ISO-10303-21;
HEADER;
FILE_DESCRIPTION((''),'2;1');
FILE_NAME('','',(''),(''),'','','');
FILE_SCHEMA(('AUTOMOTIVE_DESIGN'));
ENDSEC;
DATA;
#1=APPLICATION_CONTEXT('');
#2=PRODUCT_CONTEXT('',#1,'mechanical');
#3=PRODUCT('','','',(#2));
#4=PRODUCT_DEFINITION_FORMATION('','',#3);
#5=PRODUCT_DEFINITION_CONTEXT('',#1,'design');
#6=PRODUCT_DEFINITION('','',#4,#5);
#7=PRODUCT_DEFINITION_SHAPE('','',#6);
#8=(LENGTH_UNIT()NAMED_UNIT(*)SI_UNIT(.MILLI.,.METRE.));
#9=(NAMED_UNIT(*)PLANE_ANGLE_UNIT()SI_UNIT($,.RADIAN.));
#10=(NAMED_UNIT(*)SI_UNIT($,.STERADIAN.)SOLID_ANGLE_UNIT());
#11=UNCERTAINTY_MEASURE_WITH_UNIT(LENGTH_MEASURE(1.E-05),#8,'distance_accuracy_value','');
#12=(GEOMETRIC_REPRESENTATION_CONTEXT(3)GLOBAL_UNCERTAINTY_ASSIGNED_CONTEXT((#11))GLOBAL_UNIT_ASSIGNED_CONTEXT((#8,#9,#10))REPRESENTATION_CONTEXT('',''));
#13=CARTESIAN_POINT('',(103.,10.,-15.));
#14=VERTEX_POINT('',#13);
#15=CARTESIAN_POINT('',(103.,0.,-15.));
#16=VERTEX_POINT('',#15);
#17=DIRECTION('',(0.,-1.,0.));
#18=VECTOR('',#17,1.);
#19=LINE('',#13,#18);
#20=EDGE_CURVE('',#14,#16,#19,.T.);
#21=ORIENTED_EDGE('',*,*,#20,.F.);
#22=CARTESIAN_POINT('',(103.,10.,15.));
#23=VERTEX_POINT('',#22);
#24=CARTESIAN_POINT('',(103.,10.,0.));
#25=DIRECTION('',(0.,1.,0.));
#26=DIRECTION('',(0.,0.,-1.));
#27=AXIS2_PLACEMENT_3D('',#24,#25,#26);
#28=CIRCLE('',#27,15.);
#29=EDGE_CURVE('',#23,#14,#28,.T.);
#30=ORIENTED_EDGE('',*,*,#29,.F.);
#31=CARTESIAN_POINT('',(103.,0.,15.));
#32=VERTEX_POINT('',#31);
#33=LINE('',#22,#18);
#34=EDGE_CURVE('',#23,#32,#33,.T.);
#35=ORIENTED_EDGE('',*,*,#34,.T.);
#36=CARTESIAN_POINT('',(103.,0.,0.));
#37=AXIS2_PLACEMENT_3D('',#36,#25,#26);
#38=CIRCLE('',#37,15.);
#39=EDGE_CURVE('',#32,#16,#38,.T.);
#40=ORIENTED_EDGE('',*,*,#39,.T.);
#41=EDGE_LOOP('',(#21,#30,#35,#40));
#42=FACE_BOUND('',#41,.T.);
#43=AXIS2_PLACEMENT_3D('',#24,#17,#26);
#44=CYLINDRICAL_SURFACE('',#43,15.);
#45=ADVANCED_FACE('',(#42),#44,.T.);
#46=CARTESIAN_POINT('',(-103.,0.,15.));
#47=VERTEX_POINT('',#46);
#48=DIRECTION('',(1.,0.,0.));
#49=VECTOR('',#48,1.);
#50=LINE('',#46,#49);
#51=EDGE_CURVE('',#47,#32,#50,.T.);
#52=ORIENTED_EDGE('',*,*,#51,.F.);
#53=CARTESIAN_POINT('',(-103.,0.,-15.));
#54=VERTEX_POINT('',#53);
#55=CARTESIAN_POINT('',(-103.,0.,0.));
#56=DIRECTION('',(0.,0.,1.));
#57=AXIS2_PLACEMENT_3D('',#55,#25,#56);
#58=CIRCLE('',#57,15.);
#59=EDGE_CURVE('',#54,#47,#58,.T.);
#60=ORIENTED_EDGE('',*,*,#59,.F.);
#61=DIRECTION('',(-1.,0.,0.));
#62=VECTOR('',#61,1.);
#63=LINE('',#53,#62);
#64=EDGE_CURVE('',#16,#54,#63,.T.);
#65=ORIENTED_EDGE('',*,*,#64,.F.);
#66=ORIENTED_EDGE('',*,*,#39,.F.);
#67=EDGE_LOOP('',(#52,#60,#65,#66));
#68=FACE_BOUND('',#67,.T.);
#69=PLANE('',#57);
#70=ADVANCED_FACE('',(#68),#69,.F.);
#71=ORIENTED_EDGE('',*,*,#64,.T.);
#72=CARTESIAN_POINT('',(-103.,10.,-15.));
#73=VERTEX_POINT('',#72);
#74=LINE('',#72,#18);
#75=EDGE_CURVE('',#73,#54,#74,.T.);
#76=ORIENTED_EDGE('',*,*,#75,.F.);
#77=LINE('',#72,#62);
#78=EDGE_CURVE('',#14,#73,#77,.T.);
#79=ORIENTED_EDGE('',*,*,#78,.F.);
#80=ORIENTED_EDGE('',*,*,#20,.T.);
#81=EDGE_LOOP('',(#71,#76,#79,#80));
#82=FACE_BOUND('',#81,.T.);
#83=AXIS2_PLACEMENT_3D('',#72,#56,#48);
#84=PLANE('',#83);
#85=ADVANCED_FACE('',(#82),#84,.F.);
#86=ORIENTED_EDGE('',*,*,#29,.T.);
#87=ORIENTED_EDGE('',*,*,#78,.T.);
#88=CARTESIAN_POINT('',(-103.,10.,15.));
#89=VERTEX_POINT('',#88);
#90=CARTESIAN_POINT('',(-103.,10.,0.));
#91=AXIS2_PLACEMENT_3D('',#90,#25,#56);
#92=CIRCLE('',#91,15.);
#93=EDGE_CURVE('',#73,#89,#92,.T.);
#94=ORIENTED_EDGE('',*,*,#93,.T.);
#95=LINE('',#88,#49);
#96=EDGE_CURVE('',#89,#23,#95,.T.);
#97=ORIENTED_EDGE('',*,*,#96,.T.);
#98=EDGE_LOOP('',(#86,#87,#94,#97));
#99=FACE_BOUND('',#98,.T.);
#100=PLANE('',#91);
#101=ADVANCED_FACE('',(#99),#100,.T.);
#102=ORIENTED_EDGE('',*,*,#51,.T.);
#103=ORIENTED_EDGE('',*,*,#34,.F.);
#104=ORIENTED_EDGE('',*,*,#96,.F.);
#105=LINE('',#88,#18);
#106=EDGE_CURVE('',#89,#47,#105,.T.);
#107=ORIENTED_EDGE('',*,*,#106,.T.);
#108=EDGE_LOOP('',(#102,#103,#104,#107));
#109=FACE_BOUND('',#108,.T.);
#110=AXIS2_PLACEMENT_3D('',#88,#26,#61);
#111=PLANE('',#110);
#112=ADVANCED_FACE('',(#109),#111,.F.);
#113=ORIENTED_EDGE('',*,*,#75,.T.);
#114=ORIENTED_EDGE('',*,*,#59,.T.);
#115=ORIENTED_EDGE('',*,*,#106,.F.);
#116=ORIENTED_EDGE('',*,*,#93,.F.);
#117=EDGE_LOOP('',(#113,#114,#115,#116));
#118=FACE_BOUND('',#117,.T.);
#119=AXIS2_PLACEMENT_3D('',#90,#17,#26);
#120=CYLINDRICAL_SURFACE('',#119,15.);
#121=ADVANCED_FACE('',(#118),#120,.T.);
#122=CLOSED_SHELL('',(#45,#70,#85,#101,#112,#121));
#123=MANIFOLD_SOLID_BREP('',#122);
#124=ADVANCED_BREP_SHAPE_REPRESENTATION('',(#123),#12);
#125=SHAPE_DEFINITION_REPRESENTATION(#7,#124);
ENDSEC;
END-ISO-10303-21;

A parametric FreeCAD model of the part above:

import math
import FreeCAD as App
import Part
import Sketcher

V = App.Vector

doc = App.newDocument("Part")
body = doc.addObject("PartDesign::Body", "Body")

sketch1 = body.newObject("Sketcher::SketchObject", "Sketch")
sketch1.AttachmentSupport = (doc.getObject("XZ_Plane"), [""])
sketch1.MapMode = "FlatFace"
sketch1.addGeometry(Part.LineSegment(V(-103, 15, 0), V(103, 15, 0)), False)
sketch1.addGeometry(Part.ArcOfCircle(Part.Circle(V(103, 0, 0), V(0, 0, 1), 15), math.radians(-90), math.radians(90)), False)
sketch1.addGeometry(Part.LineSegment(V(103, -15, 0), V(-103, -15, 0)), False)
sketch1.addGeometry(Part.ArcOfCircle(Part.Circle(V(-103, 0, 0), V(0, 0, 1), 15), math.radians(90), math.radians(270)), False)
sketch1.addConstraint(Sketcher.Constraint("Tangent", 0, 2, 1, 2))
sketch1.addConstraint(Sketcher.Constraint("Tangent", 1, 1, 2, 1))
sketch1.addConstraint(Sketcher.Constraint("Tangent", 2, 2, 3, 2))
sketch1.addConstraint(Sketcher.Constraint("Tangent", 3, 1, 0, 1))
sketch1.addConstraint(Sketcher.Constraint("Horizontal", 0))
sketch1.addConstraint(Sketcher.Constraint("Horizontal", 2))
sketch1.addConstraint(Sketcher.Constraint("Symmetric", 1, 3, 3, 3, -1, 1))
sketch1.addConstraint(Sketcher.Constraint("Radius", 1, 15.0))
sketch1.addConstraint(Sketcher.Constraint("DistanceX", 0, 1, 0, 2, 206.0))
pad1 = body.newObject("PartDesign::Pad", "Pad")
pad1.Profile = sketch1
pad1.Length = 10
pad1.Reversed = True

doc.recompute()
